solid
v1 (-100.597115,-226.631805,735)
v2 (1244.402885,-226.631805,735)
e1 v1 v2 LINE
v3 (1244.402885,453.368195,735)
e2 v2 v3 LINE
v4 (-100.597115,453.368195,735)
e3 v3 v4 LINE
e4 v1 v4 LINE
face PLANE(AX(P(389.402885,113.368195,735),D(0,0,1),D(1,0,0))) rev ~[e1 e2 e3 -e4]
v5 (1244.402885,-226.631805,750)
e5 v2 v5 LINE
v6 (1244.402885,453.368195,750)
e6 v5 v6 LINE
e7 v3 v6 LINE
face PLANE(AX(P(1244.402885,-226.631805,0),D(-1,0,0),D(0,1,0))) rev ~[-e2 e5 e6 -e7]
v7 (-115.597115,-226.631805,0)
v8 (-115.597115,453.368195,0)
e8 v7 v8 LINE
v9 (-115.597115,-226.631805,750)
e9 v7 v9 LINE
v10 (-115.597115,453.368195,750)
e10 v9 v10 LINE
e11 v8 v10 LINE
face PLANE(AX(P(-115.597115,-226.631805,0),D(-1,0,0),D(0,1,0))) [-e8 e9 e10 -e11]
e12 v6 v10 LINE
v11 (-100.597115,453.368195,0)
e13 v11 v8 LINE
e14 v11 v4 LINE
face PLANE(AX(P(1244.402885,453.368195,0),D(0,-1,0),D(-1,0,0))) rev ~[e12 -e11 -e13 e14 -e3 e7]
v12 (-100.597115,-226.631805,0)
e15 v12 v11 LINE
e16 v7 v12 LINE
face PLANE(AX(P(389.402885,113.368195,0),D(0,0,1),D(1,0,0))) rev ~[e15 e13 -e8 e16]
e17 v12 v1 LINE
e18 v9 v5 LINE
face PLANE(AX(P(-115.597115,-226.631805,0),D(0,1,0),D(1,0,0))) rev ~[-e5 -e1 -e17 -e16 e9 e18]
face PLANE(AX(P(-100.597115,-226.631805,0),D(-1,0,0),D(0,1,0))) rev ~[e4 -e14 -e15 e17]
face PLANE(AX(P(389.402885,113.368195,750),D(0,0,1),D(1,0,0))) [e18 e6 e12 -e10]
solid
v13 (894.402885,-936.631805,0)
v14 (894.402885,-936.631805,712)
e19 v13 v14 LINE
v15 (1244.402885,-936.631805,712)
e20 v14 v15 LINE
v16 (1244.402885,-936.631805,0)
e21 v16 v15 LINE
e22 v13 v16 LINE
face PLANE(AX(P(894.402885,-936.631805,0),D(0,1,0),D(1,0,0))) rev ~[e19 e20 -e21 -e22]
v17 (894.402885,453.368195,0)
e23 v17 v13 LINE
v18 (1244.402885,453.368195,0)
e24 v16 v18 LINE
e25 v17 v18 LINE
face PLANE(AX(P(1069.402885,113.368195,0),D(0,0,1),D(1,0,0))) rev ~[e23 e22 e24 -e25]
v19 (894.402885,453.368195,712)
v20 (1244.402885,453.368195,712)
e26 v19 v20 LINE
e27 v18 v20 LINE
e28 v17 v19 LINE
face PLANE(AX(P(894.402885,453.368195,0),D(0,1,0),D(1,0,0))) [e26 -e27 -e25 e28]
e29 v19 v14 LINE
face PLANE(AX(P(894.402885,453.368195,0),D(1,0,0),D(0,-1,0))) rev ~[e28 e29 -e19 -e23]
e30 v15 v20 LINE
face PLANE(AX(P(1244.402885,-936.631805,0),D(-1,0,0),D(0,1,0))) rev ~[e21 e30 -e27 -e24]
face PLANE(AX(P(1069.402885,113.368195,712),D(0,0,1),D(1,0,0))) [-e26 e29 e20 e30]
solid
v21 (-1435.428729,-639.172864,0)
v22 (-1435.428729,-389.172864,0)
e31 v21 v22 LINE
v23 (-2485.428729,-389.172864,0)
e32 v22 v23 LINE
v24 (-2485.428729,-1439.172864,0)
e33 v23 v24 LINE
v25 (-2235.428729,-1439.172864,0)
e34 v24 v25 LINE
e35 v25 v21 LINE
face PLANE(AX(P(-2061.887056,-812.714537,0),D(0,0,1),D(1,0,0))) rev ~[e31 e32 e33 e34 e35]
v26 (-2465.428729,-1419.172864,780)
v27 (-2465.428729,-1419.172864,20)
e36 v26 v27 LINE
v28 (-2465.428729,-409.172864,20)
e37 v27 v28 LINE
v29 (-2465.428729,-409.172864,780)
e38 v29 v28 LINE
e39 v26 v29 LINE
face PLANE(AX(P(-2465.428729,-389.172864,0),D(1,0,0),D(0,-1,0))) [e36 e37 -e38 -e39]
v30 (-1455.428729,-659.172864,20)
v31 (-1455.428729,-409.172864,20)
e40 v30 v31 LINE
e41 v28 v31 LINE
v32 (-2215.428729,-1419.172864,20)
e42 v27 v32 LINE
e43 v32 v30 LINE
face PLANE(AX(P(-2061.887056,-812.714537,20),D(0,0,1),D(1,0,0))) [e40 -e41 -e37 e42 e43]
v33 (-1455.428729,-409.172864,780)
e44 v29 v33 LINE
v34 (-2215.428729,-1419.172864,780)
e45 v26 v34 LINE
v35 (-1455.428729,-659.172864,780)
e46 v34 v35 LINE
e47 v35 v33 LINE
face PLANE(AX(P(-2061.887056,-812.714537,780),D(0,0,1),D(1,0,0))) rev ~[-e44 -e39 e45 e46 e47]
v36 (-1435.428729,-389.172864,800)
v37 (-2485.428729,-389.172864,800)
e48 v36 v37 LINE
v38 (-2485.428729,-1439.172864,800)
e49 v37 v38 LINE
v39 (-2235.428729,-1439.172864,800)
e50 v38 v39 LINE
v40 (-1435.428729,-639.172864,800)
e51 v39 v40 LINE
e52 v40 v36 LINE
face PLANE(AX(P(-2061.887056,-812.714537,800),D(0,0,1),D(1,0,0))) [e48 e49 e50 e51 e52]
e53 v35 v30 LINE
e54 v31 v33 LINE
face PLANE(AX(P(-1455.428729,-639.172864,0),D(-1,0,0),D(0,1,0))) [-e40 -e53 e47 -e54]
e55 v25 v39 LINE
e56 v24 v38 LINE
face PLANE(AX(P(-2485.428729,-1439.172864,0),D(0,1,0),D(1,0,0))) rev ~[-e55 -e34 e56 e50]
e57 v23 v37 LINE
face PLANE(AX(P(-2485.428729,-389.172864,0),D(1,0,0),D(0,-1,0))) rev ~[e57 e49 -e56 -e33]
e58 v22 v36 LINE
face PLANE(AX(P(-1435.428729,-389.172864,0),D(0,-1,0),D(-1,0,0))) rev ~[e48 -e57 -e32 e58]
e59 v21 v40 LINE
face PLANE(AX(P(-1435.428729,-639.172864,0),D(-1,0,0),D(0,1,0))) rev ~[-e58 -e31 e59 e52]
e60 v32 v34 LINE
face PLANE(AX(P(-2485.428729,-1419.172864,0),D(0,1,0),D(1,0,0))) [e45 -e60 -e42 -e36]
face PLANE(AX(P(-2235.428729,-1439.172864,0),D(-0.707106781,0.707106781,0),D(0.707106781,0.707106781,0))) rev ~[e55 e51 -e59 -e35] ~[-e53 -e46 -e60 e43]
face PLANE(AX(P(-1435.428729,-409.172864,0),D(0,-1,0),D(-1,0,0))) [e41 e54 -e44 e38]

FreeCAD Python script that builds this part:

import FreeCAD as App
import Part
import Sketcher

V = App.Vector


def faces_at(feature, points):
    """Names of the faces that lie closest to the given points."""
    faces = feature.Shape.Faces
    near = lambda p: min(range(len(faces)), key=lambda i: faces[i].distToShape(Part.Vertex(*p))[0])
    return sorted({f"Face{near(p) + 1}" for p in points})


def add_polygon(sketch, points):
    """Adds a closed chain of lines whose ends are joined by coincident constraints."""
    first, n = sketch.GeometryCount, len(points)
    for a, b in zip(points, points[1:] + points[:1]):
        sketch.addGeometry(Part.LineSegment(App.Vector(*a, 0), App.Vector(*b, 0)), False)
    for i in range(n):
        sketch.addConstraint(Sketcher.Constraint("Coincident", first + i, 2, first + (i + 1) % n, 1))

doc = App.newDocument("Part")
body = doc.addObject("PartDesign::Body", "Body")

# Sketch on XY plane
sketch1 = body.newObject("Sketcher::SketchObject", "Sketch")
sketch1.AttachmentSupport = (doc.getObject("XY_Plane"), [""])
sketch1.MapMode = "FlatFace"
add_polygon(sketch1, [(-115.597115, 453.368195), (-115.597115, -226.631805), (1244.402885, -226.631805), (1244.402885, 453.368195)])  # lines 0-3
sketch1.addConstraint([
    Sketcher.Constraint("Vertical", 0),
    Sketcher.Constraint("Horizontal", 1),
    Sketcher.Constraint("Vertical", 2),
    Sketcher.Constraint("Horizontal", 3),
    Sketcher.Constraint("DistanceX", 1, 1, 1, 2, 1360.0),
    Sketcher.Constraint("DistanceY", 0, 2, 0, 1, 680.0),
    Sketcher.Constraint("DistanceX", 0, 2, -1, 1, 115.597115),
    Sketcher.Constraint("DistanceY", 0, 2, -1, 1, 226.631805),
])
pad1 = body.newObject("PartDesign::Pad", "Pad")
pad1.Profile = sketch1
pad1.Length = 750
doc.recompute()

thickness = body.newObject("PartDesign::Thickness", "Thickness")
thickness.Base = (pad1, faces_at(pad1, [
    (564.403, -226.632, 375),
    (1244.403, 113.368, 375),
    (564.403, 453.368, 375),
    (564.403, 113.368, 0),
]))
thickness.Value = 15
thickness.Reversed = True
thickness.Join = "Arc"
body2 = doc.addObject("PartDesign::Body", "Body001")

# Sketch on XY plane
sketch2 = body2.newObject("Sketcher::SketchObject", "Sketch001")
sketch2.AttachmentSupport = (doc.getObject("XY_Plane001"), [""])
sketch2.MapMode = "FlatFace"
add_polygon(sketch2, [(894.402885, 453.368195), (894.402885, -936.631805), (1244.402885, -936.631805), (1244.402885, 453.368195)])  # lines 0-3
sketch2.addConstraint([
    Sketcher.Constraint("Vertical", 0),
    Sketcher.Constraint("Horizontal", 1),
    Sketcher.Constraint("Vertical", 2),
    Sketcher.Constraint("Horizontal", 3),
    Sketcher.Constraint("DistanceX", 1, 1, 1, 2, 350.0),
    Sketcher.Constraint("DistanceY", 0, 2, 0, 1, 1390.0),
    Sketcher.Constraint("DistanceX", -1, 1, 0, 2, 894.402885),
    Sketcher.Constraint("DistanceY", 0, 2, -1, 1, 936.631805),
])
pad2 = body2.newObject("PartDesign::Pad", "Pad001")
pad2.Profile = sketch2
pad2.Length = 712
body3 = doc.addObject("PartDesign::Body", "Body002")

# Sketch on XY plane
sketch3 = body3.newObject("Sketcher::SketchObject", "Sketch002")
sketch3.AttachmentSupport = (doc.getObject("XY_Plane002"), [""])
sketch3.MapMode = "FlatFace"
add_polygon(sketch3, [(-1435.428729, -389.172864), (-2485.428729, -389.172864), (-2485.428729, -1439.172864), (-2235.428729, -1439.172864), (-1435.428729, -639.172864)])  # lines 0-4
sketch3.addConstraint([
    Sketcher.Constraint("Horizontal", 0),
    Sketcher.Constraint("Vertical", 1),
    Sketcher.Constraint("Horizontal", 2),
    Sketcher.Constraint("Vertical", 4),
    Sketcher.Constraint("Equal", 0, 1),
    Sketcher.Constraint("Equal", 2, 4),
    Sketcher.Constraint("DistanceX", 0, 2, 0, 1, 1050.0),
    Sketcher.Constraint("DistanceX", 2, 1, 2, 2, 250.0),
    Sketcher.Constraint("DistanceX", 0, 2, -1, 1, 2485.428729),
    Sketcher.Constraint("DistanceY", 0, 2, -1, 1, 389.172864),
])
pad3 = body3.newObject("PartDesign::Pad", "Pad002")
pad3.Profile = sketch3
pad3.Length = 800
doc.recompute()

thickness2 = body3.newObject("PartDesign::Thickness", "Thickness001")
thickness2.Base = (pad3, faces_at(pad3, [(-1835.429, -1039.173, 400)]))
thickness2.Value = 20
thickness2.Reversed = True
thickness2.Join = "Arc"

doc.recompute()
